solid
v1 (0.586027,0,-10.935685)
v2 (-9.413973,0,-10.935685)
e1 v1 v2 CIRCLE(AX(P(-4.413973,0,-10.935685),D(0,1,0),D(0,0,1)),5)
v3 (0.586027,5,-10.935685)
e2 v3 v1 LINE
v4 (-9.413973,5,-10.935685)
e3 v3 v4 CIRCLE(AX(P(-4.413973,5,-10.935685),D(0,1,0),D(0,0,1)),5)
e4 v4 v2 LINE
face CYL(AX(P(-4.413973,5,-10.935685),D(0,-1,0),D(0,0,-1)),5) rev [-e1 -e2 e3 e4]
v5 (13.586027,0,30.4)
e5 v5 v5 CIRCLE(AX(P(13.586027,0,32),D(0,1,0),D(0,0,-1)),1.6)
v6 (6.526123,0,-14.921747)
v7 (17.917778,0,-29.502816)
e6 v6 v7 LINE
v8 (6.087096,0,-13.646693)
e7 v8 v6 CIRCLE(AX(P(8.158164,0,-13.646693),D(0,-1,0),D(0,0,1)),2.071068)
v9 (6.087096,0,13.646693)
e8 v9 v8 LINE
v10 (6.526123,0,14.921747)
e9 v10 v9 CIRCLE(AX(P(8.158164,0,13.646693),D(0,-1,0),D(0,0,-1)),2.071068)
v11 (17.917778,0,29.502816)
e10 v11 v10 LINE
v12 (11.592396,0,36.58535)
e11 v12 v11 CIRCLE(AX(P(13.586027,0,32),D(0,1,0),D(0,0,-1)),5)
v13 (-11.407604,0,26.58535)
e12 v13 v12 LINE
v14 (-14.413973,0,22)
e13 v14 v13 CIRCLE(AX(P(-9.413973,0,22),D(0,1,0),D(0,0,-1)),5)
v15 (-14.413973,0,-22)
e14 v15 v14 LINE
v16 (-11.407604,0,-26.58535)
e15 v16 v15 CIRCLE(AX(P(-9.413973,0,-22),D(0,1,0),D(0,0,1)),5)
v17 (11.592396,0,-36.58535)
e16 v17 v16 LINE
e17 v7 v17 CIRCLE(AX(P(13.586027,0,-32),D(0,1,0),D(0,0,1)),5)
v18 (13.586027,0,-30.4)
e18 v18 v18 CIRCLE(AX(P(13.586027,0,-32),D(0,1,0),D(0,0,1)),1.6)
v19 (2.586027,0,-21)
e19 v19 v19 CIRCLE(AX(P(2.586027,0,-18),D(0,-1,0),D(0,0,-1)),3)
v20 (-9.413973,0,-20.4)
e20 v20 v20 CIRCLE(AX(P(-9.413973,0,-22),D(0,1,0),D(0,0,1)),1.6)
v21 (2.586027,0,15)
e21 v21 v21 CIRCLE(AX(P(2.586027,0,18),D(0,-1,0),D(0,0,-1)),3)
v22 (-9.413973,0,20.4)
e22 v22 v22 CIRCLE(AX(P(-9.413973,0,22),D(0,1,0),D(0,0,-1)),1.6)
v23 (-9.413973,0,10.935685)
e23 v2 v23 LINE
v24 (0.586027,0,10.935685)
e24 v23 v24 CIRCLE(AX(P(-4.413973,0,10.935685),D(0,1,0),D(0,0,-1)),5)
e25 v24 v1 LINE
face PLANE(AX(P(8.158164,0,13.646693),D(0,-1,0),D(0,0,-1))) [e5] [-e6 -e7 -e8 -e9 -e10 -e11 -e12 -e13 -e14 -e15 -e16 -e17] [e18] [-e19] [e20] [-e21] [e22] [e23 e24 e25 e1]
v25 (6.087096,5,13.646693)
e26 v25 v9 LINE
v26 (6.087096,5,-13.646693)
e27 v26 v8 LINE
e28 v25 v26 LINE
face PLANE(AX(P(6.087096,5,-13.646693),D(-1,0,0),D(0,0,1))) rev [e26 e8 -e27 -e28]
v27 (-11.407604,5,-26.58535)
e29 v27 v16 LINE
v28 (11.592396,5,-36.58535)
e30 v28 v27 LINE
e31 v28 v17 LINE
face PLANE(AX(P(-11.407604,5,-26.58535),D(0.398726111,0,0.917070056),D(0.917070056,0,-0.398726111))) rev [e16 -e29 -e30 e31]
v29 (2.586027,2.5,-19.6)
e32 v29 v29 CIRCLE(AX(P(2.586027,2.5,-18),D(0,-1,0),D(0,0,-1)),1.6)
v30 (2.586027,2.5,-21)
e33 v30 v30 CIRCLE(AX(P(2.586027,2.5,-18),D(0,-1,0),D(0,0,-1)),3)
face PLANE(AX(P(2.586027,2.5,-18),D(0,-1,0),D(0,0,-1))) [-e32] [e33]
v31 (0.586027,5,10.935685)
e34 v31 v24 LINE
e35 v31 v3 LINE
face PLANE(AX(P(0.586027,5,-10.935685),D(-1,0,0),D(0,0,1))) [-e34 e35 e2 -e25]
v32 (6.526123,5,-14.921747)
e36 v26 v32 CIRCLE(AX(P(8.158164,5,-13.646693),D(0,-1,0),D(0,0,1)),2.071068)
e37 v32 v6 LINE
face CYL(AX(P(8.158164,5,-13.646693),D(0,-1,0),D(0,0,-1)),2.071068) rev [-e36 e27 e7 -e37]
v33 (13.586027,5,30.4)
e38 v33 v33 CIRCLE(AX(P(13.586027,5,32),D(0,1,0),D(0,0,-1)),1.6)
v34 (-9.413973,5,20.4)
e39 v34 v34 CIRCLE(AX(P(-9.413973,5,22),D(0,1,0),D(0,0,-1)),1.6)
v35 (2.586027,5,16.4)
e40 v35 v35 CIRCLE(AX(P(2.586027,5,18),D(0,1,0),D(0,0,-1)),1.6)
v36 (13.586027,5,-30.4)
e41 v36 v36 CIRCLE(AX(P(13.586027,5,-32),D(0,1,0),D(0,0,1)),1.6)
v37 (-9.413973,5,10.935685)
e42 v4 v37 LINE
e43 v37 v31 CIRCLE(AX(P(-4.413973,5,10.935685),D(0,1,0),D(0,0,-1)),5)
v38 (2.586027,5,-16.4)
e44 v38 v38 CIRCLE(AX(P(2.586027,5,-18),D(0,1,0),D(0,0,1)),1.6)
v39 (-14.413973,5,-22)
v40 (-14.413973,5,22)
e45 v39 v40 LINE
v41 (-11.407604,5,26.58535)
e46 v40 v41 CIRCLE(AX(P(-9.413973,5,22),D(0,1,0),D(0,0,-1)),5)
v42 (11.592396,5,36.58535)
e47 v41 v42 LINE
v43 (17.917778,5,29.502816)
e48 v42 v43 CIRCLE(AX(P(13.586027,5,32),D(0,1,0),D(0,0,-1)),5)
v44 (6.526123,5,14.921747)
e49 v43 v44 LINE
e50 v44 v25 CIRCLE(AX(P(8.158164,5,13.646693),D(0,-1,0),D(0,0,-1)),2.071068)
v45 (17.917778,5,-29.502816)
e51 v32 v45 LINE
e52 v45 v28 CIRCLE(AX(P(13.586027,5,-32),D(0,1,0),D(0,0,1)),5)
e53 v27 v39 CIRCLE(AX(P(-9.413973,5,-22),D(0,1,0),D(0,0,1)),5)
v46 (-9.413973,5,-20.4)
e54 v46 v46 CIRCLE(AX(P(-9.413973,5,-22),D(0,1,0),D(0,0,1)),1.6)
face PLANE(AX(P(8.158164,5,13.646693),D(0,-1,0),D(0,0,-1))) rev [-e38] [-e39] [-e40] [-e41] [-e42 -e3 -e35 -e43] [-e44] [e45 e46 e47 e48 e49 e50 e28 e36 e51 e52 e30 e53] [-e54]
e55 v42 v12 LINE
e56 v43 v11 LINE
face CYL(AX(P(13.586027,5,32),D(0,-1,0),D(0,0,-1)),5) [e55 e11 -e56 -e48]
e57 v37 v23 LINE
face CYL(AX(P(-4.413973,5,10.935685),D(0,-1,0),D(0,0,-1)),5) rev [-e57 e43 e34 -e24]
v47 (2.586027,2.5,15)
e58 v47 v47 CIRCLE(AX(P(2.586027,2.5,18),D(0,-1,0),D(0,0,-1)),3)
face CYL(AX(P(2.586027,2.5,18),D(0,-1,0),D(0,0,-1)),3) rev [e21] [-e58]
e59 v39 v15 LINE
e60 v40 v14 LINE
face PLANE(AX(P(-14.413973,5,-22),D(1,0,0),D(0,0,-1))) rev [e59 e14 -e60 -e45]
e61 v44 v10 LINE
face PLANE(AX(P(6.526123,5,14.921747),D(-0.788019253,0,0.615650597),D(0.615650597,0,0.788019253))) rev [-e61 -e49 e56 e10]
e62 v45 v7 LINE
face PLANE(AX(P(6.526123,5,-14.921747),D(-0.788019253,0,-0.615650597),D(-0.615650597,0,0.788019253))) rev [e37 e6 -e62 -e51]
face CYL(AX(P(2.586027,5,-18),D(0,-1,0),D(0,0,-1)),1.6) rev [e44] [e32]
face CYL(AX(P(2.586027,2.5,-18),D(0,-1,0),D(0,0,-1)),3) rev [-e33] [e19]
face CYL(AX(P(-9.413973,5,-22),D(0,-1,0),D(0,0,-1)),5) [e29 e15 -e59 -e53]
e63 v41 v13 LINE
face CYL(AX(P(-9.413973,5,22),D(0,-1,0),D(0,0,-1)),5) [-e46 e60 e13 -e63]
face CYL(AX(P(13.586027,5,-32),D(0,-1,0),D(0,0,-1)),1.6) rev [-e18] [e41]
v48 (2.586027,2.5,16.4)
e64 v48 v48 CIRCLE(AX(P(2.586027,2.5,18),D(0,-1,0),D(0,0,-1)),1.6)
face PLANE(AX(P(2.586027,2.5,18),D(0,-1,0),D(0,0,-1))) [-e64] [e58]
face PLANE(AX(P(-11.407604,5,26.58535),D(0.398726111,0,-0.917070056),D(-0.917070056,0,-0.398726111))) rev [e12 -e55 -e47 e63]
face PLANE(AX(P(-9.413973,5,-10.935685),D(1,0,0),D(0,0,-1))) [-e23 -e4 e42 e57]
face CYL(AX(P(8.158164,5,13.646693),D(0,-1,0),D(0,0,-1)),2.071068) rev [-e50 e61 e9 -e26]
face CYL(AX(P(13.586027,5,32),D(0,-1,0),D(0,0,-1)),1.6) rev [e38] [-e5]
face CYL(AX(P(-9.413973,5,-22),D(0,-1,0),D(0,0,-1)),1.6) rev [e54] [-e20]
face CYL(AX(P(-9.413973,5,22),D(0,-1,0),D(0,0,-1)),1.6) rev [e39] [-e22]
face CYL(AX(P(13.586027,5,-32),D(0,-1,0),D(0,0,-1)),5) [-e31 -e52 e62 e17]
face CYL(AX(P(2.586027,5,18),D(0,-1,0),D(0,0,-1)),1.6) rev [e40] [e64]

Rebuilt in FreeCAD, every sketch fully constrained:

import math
import FreeCAD as App
import Part
import Sketcher
Q = App.Units.Quantity

doc = App.newDocument("Part")
body = doc.addObject("PartDesign::Body", "Body")

sketch1 = body.newObject("Sketcher::SketchObject", "Sketch")
sketch1.AttachmentSupport = (doc.getObject("XZ_Plane"), [""])
sketch1.MapMode = "FlatFace"
sketch1.addGeometry([
    Part.LineSegment(App.Vector(11.6, -36.6, 0), App.Vector(-11.4, -26.6, 0)),
    Part.ArcOfCircle(Part.Circle(App.Vector(-9.4, -22, 0), App.Vector(0, 0, 1), 5), math.radians(180), math.radians(247)),
    Part.LineSegment(App.Vector(-14.4, -22, 0), App.Vector(-14.4, 22, 0)),
    Part.ArcOfCircle(Part.Circle(App.Vector(-9.4, 22, 0), App.Vector(0, 0, 1), 5), math.radians(113), math.radians(180)),
    Part.LineSegment(App.Vector(-11.4, 26.6, 0), App.Vector(11.6, 36.6, 0)),
    Part.ArcOfCircle(Part.Circle(App.Vector(13.6, 32, 0), App.Vector(0, 0, 1), 5), math.radians(-30), math.radians(113)),
    Part.LineSegment(App.Vector(17.9, 29.5, 0), App.Vector(6.5, 14.9, 0)),
    Part.ArcOfCircle(Part.Circle(App.Vector(8.2, 13.6, 0), App.Vector(0, 0, 1), 2.1), math.radians(142), math.radians(180)),
    Part.LineSegment(App.Vector(6.1, 13.6, 0), App.Vector(6.1, -13.6, 0)),
    Part.ArcOfCircle(Part.Circle(App.Vector(8.2, -13.6, 0), App.Vector(0, 0, 1), 2.1), math.radians(180), math.radians(218)),
    Part.LineSegment(App.Vector(6.5, -14.9, 0), App.Vector(17.9, -29.5, 0)),
    Part.ArcOfCircle(Part.Circle(App.Vector(13.6, -32, 0), App.Vector(0, 0, 1), 5), math.radians(-113), math.radians(30)),
    Part.Circle(App.Vector(13.6, 32, 0), App.Vector(0, 0, 1), 1.6),
    Part.Circle(App.Vector(2.6, 18, 0), App.Vector(0, 0, 1), 1.6),
    Part.Circle(App.Vector(-9.4, 22, 0), App.Vector(0, 0, 1), 1.6),
    Part.Circle(App.Vector(13.6, -32, 0), App.Vector(0, 0, 1), 1.6),
    Part.Circle(App.Vector(2.6, -18, 0), App.Vector(0, 0, 1), 1.6),
    Part.ArcOfCircle(Part.Circle(App.Vector(-4.4, -10.9, 0), App.Vector(0, 0, 1), 5), math.radians(180), math.radians(360)),
    Part.LineSegment(App.Vector(0.6, -10.9, 0), App.Vector(0.6, 10.9, 0)),
    Part.ArcOfCircle(Part.Circle(App.Vector(-4.4, 10.9, 0), App.Vector(0, 0, 1), 5), math.radians(0), math.radians(180)),
    Part.LineSegment(App.Vector(-9.4, 10.9, 0), App.Vector(-9.4, -10.9, 0)),
    Part.Circle(App.Vector(-9.4, -22, 0), App.Vector(0, 0, 1), 1.6),
], False)
sketch1.addConstraint([
    Sketcher.Constraint("Tangent", 0, 2, 1, 2),
    Sketcher.Constraint("Tangent", 1, 1, 2, 1),
    Sketcher.Constraint("Tangent", 2, 2, 3, 2),
    Sketcher.Constraint("Tangent", 3, 1, 4, 1),
    Sketcher.Constraint("Tangent", 4, 2, 5, 2),
    Sketcher.Constraint("Coincident", 5, 1, 6, 1),
    Sketcher.Constraint("Tangent", 6, 2, 7, 1),
    Sketcher.Constraint("Tangent", 7, 2, 8, 1),
    Sketcher.Constraint("Tangent", 8, 2, 9, 1),
    Sketcher.Constraint("Tangent", 9, 2, 10, 1),
    Sketcher.Constraint("Coincident", 10, 2, 11, 2),
    Sketcher.Constraint("Tangent", 11, 1, 0, 1),
    Sketcher.Constraint("Tangent", 17, 2, 18, 1),
    Sketcher.Constraint("Tangent", 18, 2, 19, 1),
    Sketcher.Constraint("Tangent", 19, 2, 20, 1),
    Sketcher.Constraint("Tangent", 20, 2, 17, 1),
    Sketcher.Constraint("Vertical", 2),
    Sketcher.Constraint("Vertical", 8),
    Sketcher.Constraint("Vertical", 18),
    Sketcher.Constraint("Vertical", 20),
    Sketcher.Constraint("Coincident", 12, 3, 5, 3),
    Sketcher.Constraint("Coincident", 14, 3, 3, 3),
    Sketcher.Constraint("Coincident", 15, 3, 11, 3),
    Sketcher.Constraint("Coincident", 21, 3, 1, 3),
    Sketcher.Constraint("Equal", 1, 3),
    Sketcher.Constraint("Equal", 3, 5),
    Sketcher.Constraint("Equal", 7, 9),
    Sketcher.Constraint("Equal", 5, 11),
    Sketcher.Constraint("Equal", 12, 13),
    Sketcher.Constraint("Equal", 13, 14),
    Sketcher.Constraint("Equal", 14, 15),
    Sketcher.Constraint("Equal", 15, 16),
    Sketcher.Constraint("Equal", 11, 17),
    Sketcher.Constraint("Equal", 16, 21),
    Sketcher.Constraint("Symmetric", 5, 3, 11, 3, -1),
    Sketcher.Constraint("Symmetric", 13, 3, 16, 3, -1),
    Sketcher.Constraint("Symmetric", 6, 2, 9, 2, -1),
    Sketcher.Constraint("Vertical", 0, 2, 3, 1),
    Sketcher.Constraint("Vertical", 21, 3, 19, 2),
    Sketcher.Constraint("Radius", 1, Q("5 mm")),
    Sketcher.Constraint("Diameter", 12, Q("3.2 mm")),
    Sketcher.Constraint("DistanceY", 2, 1, 2, 2, Q("44 mm")),
    Sketcher.Constraint("DistanceY", -1, 1, 5, 3, Q("32 mm")),
    Sketcher.Constraint("DistanceY", -1, 1, 13, 3, Q("18 mm")),
    Sketcher.Constraint("DistanceX", 3, 3, 5, 3, Q("23 mm")),
    Sketcher.Constraint("DistanceX", 3, 3, 13, 3, Q("12 mm")),
    Sketcher.Constraint("Radius", 7, Q("2.071068 mm")),
    Sketcher.Constraint("DistanceY", 18, 1, 18, 2, Q("21.87137 mm")),
    Sketcher.Constraint("Distance", 6, Q("18.503442 mm")),
    Sketcher.Constraint("DistanceY", 8, 2, 8, 1, Q("27.293386 mm")),
    Sketcher.Constraint("DistanceY", 9, 3, 17, 3, Q("2.711008 mm")),
    Sketcher.Constraint("DistanceX", 0, 2, 9, 3, Q("19.565768 mm")),
    Sketcher.Constraint("DistanceX", 1, 3, -1, 1, Q("9.413973 mm")),
])
pad1 = body.newObject("PartDesign::Pad", "Pad")
pad1.Profile = sketch1
pad1.Length = 5
pad1.Reversed = True

sketch2 = body.newObject("Sketcher::SketchObject", "Sketch001")
sketch2.AttachmentSupport = (doc.getObject("XZ_Plane"), [""])
sketch2.MapMode = "FlatFace"
sketch2.addGeometry([
    Part.Circle(App.Vector(2.6, -18, 0), App.Vector(0, 0, 1), 3),
    Part.Circle(App.Vector(2.6, 18, 0), App.Vector(0, 0, 1), 3),
], False)
sketch2.addConstraint([
    Sketcher.Constraint("Equal", 0, 1),
    Sketcher.Constraint("Symmetric", 0, 3, 1, 3, -1),
    Sketcher.Constraint("Diameter", 0, Q("6 mm")),
    Sketcher.Constraint("DistanceY", 0, 3, -1, 1, Q("18 mm")),
    Sketcher.Constraint("DistanceX", -1, 1, 0, 3, Q("2.586027 mm")),
])
pocket1 = body.newObject("PartDesign::Pocket", "Pocket")
pocket1.Profile = sketch2
pocket1.Length = 2.5

doc.recompute()
